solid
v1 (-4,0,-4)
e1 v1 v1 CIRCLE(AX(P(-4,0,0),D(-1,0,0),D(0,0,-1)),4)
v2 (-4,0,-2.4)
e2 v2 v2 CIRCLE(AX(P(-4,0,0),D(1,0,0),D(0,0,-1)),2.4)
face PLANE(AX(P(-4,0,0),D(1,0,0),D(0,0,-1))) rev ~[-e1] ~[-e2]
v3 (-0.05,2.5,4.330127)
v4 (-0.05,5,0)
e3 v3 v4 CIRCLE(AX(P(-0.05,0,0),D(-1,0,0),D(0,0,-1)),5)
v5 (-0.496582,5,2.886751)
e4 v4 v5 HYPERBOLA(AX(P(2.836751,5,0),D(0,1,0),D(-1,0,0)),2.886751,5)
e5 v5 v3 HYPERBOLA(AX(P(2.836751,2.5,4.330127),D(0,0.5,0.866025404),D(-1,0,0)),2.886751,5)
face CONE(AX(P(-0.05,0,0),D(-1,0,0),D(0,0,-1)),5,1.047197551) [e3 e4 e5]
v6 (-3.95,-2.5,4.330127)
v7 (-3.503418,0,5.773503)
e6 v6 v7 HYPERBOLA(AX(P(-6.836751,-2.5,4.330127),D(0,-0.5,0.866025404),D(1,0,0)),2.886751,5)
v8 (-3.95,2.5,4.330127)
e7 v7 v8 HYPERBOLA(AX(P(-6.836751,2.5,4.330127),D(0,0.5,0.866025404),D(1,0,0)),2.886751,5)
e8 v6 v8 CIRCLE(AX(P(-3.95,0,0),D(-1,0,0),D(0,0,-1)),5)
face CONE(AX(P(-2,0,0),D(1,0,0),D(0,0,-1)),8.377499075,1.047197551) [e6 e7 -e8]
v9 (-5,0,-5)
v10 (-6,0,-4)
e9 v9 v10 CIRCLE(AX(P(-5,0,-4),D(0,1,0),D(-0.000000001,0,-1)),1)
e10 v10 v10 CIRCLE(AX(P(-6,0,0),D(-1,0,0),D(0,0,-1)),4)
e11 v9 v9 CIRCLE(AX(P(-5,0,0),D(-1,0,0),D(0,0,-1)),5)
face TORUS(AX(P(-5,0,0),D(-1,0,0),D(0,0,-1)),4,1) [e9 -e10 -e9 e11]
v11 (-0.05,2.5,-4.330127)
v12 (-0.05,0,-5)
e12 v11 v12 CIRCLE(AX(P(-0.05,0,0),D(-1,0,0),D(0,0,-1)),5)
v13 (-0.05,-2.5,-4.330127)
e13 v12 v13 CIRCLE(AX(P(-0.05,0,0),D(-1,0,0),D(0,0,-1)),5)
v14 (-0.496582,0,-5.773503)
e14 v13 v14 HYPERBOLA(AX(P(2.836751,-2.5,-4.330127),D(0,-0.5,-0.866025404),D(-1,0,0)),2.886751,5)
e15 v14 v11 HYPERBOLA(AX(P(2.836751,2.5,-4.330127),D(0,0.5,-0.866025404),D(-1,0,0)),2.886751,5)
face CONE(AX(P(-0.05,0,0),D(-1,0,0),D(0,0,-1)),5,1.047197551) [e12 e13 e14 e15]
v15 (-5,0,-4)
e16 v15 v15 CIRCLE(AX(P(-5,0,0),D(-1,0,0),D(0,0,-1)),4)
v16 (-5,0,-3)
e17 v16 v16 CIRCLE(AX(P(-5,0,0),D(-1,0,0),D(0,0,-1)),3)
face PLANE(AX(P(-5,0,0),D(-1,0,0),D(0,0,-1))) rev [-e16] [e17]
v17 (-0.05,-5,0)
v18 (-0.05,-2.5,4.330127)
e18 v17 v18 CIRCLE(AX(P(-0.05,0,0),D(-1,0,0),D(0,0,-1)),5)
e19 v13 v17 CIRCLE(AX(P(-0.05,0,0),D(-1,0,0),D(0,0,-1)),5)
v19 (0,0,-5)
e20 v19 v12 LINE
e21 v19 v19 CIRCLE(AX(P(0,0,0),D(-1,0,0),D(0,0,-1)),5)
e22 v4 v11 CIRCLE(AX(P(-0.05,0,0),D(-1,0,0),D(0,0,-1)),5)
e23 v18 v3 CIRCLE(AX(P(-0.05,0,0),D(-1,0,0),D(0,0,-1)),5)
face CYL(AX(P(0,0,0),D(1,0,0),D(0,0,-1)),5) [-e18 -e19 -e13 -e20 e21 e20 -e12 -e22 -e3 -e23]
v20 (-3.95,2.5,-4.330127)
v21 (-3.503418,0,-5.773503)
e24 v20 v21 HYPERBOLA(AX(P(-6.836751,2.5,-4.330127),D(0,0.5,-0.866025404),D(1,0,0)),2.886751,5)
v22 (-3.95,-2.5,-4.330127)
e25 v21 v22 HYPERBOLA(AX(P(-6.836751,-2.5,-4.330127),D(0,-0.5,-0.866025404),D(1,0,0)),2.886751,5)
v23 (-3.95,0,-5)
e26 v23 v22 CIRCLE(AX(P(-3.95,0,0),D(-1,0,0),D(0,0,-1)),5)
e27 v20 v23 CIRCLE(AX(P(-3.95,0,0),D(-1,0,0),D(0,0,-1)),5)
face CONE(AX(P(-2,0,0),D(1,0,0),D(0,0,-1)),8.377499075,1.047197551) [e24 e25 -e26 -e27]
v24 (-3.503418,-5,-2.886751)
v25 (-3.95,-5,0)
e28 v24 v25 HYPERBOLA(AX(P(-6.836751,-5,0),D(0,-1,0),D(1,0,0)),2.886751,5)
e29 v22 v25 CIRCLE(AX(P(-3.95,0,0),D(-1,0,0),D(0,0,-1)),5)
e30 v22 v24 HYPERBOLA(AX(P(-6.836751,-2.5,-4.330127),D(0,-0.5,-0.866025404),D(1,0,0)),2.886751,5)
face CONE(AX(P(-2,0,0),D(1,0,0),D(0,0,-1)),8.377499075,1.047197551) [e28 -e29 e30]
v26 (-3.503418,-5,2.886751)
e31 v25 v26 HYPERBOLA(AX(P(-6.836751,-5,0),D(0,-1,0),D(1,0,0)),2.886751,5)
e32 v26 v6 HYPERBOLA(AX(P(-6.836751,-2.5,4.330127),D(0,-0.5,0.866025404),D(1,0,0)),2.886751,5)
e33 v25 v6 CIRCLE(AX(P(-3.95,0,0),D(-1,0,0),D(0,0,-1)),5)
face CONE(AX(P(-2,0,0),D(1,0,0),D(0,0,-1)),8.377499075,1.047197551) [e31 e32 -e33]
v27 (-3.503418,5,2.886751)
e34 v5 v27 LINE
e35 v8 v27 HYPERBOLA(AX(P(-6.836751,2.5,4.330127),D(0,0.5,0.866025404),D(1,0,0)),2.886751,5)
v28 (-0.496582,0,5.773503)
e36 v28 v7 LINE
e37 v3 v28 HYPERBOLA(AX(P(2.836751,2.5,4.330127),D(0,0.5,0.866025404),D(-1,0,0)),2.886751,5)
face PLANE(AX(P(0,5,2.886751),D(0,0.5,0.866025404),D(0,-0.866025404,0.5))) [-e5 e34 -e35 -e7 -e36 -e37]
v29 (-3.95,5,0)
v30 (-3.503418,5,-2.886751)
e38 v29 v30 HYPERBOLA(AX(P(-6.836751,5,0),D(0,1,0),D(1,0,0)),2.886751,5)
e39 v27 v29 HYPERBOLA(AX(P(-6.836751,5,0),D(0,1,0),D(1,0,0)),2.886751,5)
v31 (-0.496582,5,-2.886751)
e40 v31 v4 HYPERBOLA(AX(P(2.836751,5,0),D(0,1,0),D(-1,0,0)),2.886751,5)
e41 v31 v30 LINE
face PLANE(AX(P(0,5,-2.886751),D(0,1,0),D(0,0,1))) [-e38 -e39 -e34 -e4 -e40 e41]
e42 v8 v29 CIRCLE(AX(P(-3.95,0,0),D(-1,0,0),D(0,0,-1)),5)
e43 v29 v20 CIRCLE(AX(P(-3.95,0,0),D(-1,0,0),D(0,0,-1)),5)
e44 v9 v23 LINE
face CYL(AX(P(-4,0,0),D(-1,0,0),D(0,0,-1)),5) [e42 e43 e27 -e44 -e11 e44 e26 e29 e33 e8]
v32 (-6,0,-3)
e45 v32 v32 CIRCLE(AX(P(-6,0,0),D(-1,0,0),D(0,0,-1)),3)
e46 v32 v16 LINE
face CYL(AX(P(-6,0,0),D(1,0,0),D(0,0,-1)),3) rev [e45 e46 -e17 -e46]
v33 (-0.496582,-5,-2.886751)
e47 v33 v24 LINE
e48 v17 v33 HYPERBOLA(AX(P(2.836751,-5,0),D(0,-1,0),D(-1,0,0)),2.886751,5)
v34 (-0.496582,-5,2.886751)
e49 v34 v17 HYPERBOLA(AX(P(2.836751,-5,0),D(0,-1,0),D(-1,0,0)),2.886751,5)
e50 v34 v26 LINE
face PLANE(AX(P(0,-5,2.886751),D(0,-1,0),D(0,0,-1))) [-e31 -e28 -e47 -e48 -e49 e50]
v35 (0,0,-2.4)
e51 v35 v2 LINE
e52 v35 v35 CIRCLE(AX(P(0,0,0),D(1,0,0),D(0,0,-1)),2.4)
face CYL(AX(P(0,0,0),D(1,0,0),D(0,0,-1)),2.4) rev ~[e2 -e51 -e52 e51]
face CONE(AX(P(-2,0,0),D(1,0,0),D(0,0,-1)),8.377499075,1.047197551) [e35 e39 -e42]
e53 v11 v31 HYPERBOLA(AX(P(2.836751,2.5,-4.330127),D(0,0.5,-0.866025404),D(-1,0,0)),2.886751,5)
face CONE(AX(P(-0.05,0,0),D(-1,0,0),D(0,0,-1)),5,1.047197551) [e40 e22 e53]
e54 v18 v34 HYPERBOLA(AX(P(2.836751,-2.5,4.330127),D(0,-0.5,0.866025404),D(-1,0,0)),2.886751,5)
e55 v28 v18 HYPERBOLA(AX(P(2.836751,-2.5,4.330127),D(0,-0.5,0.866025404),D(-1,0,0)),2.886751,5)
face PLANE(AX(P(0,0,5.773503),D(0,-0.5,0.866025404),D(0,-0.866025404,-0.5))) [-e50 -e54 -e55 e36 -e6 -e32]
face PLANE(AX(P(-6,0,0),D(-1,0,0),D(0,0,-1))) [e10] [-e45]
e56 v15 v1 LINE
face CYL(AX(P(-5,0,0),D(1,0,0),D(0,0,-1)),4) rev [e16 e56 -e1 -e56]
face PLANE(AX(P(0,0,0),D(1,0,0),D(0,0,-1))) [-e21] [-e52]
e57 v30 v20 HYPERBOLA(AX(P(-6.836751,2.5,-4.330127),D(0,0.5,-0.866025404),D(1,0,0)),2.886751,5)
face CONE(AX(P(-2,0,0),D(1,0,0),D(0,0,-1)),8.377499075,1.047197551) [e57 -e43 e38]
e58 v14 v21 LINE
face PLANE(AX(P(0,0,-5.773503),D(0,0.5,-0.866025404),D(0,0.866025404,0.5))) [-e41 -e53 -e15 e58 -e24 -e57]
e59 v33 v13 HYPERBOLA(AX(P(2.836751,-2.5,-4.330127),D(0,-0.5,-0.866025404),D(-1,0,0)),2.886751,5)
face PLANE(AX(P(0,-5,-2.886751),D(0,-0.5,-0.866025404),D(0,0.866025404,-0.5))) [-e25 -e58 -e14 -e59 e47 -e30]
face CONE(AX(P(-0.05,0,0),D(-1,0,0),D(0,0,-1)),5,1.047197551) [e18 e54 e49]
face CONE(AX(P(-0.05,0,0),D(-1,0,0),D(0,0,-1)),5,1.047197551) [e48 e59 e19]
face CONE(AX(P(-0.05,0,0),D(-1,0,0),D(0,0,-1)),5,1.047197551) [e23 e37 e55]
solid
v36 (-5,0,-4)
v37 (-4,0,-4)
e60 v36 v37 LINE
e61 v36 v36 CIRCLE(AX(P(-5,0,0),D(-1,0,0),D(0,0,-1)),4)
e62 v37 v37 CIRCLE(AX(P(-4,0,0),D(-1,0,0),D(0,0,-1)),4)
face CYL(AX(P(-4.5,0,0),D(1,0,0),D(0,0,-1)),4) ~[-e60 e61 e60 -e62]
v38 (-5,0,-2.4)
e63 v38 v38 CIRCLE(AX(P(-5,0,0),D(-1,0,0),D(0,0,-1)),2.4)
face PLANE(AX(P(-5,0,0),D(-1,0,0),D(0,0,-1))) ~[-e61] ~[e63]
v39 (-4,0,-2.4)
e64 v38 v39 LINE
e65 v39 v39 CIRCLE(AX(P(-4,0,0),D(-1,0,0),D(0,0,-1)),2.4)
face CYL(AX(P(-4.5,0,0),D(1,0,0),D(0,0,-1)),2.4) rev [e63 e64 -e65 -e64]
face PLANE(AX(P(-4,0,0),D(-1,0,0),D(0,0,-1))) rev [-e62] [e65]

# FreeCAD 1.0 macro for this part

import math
import FreeCAD as App
import Part
import Sketcher

V = App.Vector
Q = App.Units.Quantity


def add_polygon(sketch, points):
    """Adds a closed chain of lines whose ends are joined by coincident constraints."""
    first, n = sketch.GeometryCount, len(points)
    for a, b in zip(points, points[1:] + points[:1]):
        sketch.addGeometry(Part.LineSegment(App.Vector(*a, 0), App.Vector(*b, 0)), False)
    for i in range(n):
        sketch.addConstraint(Sketcher.Constraint("Coincident", first + i, 2, first + (i + 1) % n, 1))

doc = App.newDocument("Part")
params = doc.addObject("Spreadsheet::Sheet", "Params")
for row, (alias, value) in enumerate([
    ("sketch1_diameter", "10 mm"),
    ("pad1_length", "4 mm"),
    ("sketch2_width", "3.9 mm"),
    ("revolution_angle", "360 deg"),
    ("sketch4_diameter", "4.8 mm"),
    ("sketch5_radius", "1 mm"),
    ("revolution2_angle", "360 deg"),
    ("sketch6_width", "1 mm"),
    ("sketch6_height", "1.6 mm"),
    ("revolution3_angle", "360 deg"),
], start=1):
    params.set(f"A{row}", alias)
    params.set(f"B{row}", "=" + value)
    params.setAlias(f"B{row}", alias)

body = doc.addObject("PartDesign::Body", "Body")

# Sketch on YZ plane
sketch1 = body.newObject("Sketcher::SketchObject", "Sketch")
sketch1.AttachmentSupport = (doc.getObject("YZ_Plane"), [""])
sketch1.MapMode = "FlatFace"
sketch1.addGeometry(Part.Circle(V(0, 0, 0), V(0, 0, 1), 5), False)
sketch1.addConstraint(Sketcher.Constraint("Coincident", 0, 3, -1, 1))
sketch1.addConstraint(Sketcher.Constraint("Diameter", 0, Q("10 mm")))
sketch1.setExpression("Constraints[1]", "Params.sketch1_diameter")
pad1 = body.newObject("PartDesign::Pad", "Pad")
pad1.Profile = sketch1
pad1.setExpression("Length", "Params.pad1_length")
pad1.Reversed = True

# Sketch on XY plane
sketch2 = body.newObject("Sketcher::SketchObject", "Sketch001")
sketch2.AttachmentSupport = (doc.getObject("XY_Plane"), [""])
sketch2.MapMode = "FlatFace"
add_polygon(sketch2, [(-0.1, 5), (-2, 8.4), (-4, 5)])  # lines 0-2
sketch2.addConstraint(Sketcher.Constraint("Horizontal", 2))
sketch2.addConstraint(Sketcher.Constraint("Equal", 0, 1))
sketch2.addConstraint(Sketcher.Constraint("Angle", 0, Q("120 deg")))
sketch2.addConstraint(Sketcher.Constraint("DistanceX", 2, 1, 2, 2, Q("3.9 mm")))
sketch2.addConstraint(Sketcher.Constraint("DistanceX", 0, 2, -1, 1, Q("2 mm")))
sketch2.addConstraint(Sketcher.Constraint("DistanceY", -1, 1, 1, 2, Q("5 mm")))
sketch2.setExpression("Constraints[6]", "Params.sketch2_width")
revolution = body.newObject("PartDesign::Revolution", "Revolution")
revolution.Profile = sketch2
revolution.ReferenceAxis = (sketch2, ["H_Axis"])
revolution.setExpression("Angle", "Params.revolution_angle")

# Sketch on YZ plane
sketch3 = body.newObject("Sketcher::SketchObject", "Sketch002")
sketch3.AttachmentSupport = (doc.getObject("YZ_Plane"), [""])
sketch3.MapMode = "FlatFace"
sketch3.addGeometry(Part.Circle(V(0, 0, 0), V(0, 0, 1), 8), False)  # 0
add_polygon(sketch3, [(0, -6), (-5, -3), (-5, 3), (0, 6), (5, 3), (5, -3)])  # lines 1-6
sketch3.addConstraint(Sketcher.Constraint("Vertical", 2))
sketch3.addConstraint(Sketcher.Constraint("Vertical", 5))
sketch3.addConstraint(Sketcher.Constraint("Coincident", 0, 3, -1, 1))
sketch3.addConstraint(Sketcher.Constraint("Symmetric", 1, 2, 4, 2, -1, 1))
sketch3.addConstraint(Sketcher.Constraint("Symmetric", 3, 2, 6, 2, -1, 1))
sketch3.addConstraint(Sketcher.Constraint("PointOnObject", 3, 2, -2))
sketch3.addConstraint(Sketcher.Constraint("Parallel", 3, 6))
sketch3.addConstraint(Sketcher.Constraint("Horizontal", 2, 2, 4, 2))
sketch3.addConstraint(Sketcher.Constraint("Angle", 1, Q("150 deg")))
sketch3.addConstraint(Sketcher.Constraint("Diameter", 0, Q("16.754998 mm")))
sketch3.addConstraint(Sketcher.Constraint("DistanceX", 1, 2, -1, 1, Q("5 mm")))
sketch3.addConstraint(Sketcher.Constraint("DistanceY", 2, 1, 2, 2, Q("5.773503 mm")))
pocket1 = body.newObject("PartDesign::Pocket", "Pocket")
pocket1.Profile = sketch3
pocket1.Type = "ThroughAll"

# Sketch on YZ plane
sketch4 = body.newObject("Sketcher::SketchObject", "Sketch003")
sketch4.AttachmentSupport = (doc.getObject("YZ_Plane"), [""])
sketch4.MapMode = "FlatFace"
sketch4.addGeometry(Part.Circle(V(0, 0, 0), V(0, 0, 1), 2.4), False)
sketch4.addConstraint(Sketcher.Constraint("Coincident", 0, 3, -1, 1))
sketch4.addConstraint(Sketcher.Constraint("Diameter", 0, Q("4.8 mm")))
sketch4.setExpression("Constraints[1]", "Params.sketch4_diameter")
pocket2 = body.newObject("PartDesign::Pocket", "Pocket001")
pocket2.Profile = sketch4
pocket2.Type = "ThroughAll"

# Sketch on XY plane
sketch5 = body.newObject("Sketcher::SketchObject", "Sketch004")
sketch5.AttachmentSupport = (doc.getObject("XY_Plane"), [""])
sketch5.MapMode = "FlatFace"
sketch5.addGeometry(Part.LineSegment(V(-4, 5, 0), V(-5, 5, 0)), False)
sketch5.addGeometry(Part.ArcOfCircle(Part.Circle(V(-5, 4, 0), V(0, 0, 1), 1), math.radians(90), math.radians(180)), False)
sketch5.addGeometry(Part.LineSegment(V(-6, 4, 0), V(-6, 3, 0)), False)
sketch5.addGeometry(Part.LineSegment(V(-6, 3, 0), V(-5, 3, 0)), False)
sketch5.addGeometry(Part.LineSegment(V(-5, 3, 0), V(-5, 4, 0)), False)
sketch5.addGeometry(Part.LineSegment(V(-5, 4, 0), V(-4, 4, 0)), False)
sketch5.addGeometry(Part.LineSegment(V(-4, 4, 0), V(-4, 5, 0)), False)
sketch5.addConstraint(Sketcher.Constraint("Tangent", 0, 2, 1, 1))
sketch5.addConstraint(Sketcher.Constraint("Tangent", 1, 2, 2, 1))
sketch5.addConstraint(Sketcher.Constraint("Coincident", 2, 2, 3, 1))
sketch5.addConstraint(Sketcher.Constraint("Coincident", 3, 2, 4, 1))
sketch5.addConstraint(Sketcher.Constraint("Coincident", 4, 2, 5, 1))
sketch5.addConstraint(Sketcher.Constraint("Coincident", 5, 2, 6, 1))
sketch5.addConstraint(Sketcher.Constraint("Coincident", 6, 2, 0, 1))
sketch5.addConstraint(Sketcher.Constraint("Horizontal", 0))
sketch5.addConstraint(Sketcher.Constraint("Vertical", 2))
sketch5.addConstraint(Sketcher.Constraint("Horizontal", 3))
sketch5.addConstraint(Sketcher.Constraint("Vertical", 4))
sketch5.addConstraint(Sketcher.Constraint("Horizontal", 5))
sketch5.addConstraint(Sketcher.Constraint("Vertical", 6))
sketch5.addConstraint(Sketcher.Constraint("Coincident", 4, 2, 1, 3))
sketch5.addConstraint(Sketcher.Constraint("Equal", 0, 3))
sketch5.addConstraint(Sketcher.Constraint("Equal", 5, 2))
sketch5.addConstraint(Sketcher.Constraint("Radius", 1, Q("1 mm")))
sketch5.addConstraint(Sketcher.Constraint("DistanceX", 1, 3, -1, 1, Q("5 mm")))
sketch5.addConstraint(Sketcher.Constraint("DistanceY", -1, 1, 1, 3, Q("4 mm")))
sketch5.setExpression("Constraints[16]", "Params.sketch5_radius")
revolution2 = body.newObject("PartDesign::Revolution", "Revolution001")
revolution2.Profile = sketch5
revolution2.ReferenceAxis = (sketch5, ["H_Axis"])
revolution2.setExpression("Angle", "Params.revolution2_angle")
body2 = doc.addObject("PartDesign::Body", "Body001")

# Sketch on XY plane
sketch6 = body2.newObject("Sketcher::SketchObject", "Sketch005")
sketch6.AttachmentSupport = (doc.getObject("XY_Plane001"), [""])
sketch6.MapMode = "FlatFace"
add_polygon(sketch6, [(-5, 4), (-5, 2.4), (-4, 2.4), (-4, 4)])  # lines 0-3
sketch6.addConstraint(Sketcher.Constraint("Vertical", 0))
sketch6.addConstraint(Sketcher.Constraint("Horizontal", 1))
sketch6.addConstraint(Sketcher.Constraint("Vertical", 2))
sketch6.addConstraint(Sketcher.Constraint("Horizontal", 3))
sketch6.addConstraint(Sketcher.Constraint("DistanceX", 1, 1, 1, 2, Q("1 mm")))
sketch6.addConstraint(Sketcher.Constraint("DistanceY", 0, 2, 0, 1, Q("1.6 mm")))
sketch6.addConstraint(Sketcher.Constraint("DistanceX", 0, 2, -1, 1, Q("5 mm")))
sketch6.addConstraint(Sketcher.Constraint("DistanceY", -1, 1, 2, 2, Q("4 mm")))
sketch6.setExpression("Constraints[8]", "Params.sketch6_width")
sketch6.setExpression("Constraints[9]", "Params.sketch6_height")
revolution3 = body2.newObject("PartDesign::Revolution", "Revolution002")
revolution3.Profile = sketch6
revolution3.ReferenceAxis = (sketch6, ["H_Axis"])
revolution3.setExpression("Angle", "Params.revolution3_angle")

doc.recompute()
